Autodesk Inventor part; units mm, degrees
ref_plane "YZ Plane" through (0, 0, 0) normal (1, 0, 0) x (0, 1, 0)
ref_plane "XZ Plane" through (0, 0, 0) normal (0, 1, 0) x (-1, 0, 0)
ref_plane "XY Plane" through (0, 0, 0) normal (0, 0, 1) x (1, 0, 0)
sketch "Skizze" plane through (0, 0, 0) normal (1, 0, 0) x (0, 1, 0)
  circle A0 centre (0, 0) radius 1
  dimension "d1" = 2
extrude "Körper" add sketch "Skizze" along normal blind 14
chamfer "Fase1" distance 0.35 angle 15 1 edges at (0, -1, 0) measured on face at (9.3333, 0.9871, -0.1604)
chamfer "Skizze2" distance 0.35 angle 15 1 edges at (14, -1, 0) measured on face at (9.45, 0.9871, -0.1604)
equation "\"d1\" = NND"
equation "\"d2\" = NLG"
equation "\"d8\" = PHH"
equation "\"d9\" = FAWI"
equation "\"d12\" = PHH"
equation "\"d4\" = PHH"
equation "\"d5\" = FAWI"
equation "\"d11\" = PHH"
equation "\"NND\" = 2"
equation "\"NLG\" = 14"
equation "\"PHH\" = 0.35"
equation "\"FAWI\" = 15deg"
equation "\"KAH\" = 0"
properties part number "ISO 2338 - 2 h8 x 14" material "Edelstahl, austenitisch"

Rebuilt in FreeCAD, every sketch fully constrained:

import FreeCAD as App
import Part
import Sketcher
from FreeCAD import Vector


def edges_at(feature, points):
    """Names of the edges that pass closest to the given points."""
    edges = feature.Shape.Edges
    near = lambda p: min(range(len(edges)), key=lambda i: edges[i].distToShape(Part.Vertex(*p))[0])
    return sorted({f"Edge{near(p) + 1}" for p in points})

doc = App.newDocument("Part")
body = doc.addObject("PartDesign::Body", "Body")

sketch1 = doc.addObject("Sketcher::SketchObject", "Sketch")
body.addObject(sketch1)
sketch1.AttachmentSupport = (doc.YZ_Plane, [""])
sketch1.MapMode = "FlatFace"
sketch1.addGeometry(Part.Circle(Vector(0, 0, 0), Vector(0, 0, 1), 1), False)
sketch1.addConstraint([
    Sketcher.Constraint("Coincident", 0, 3, -1, 1),
    Sketcher.Constraint("Diameter", 0, 2.0),
])
pad1 = doc.addObject("PartDesign::Pad", "Pad")
body.addObject(pad1)
pad1.Profile = sketch1
pad1.Length = 14
doc.recompute()

chamfer = doc.addObject("PartDesign::Chamfer", "Chamfer")
body.addObject(chamfer)
chamfer.Base = (pad1, edges_at(pad1, [(0, -1, 0)]))
chamfer.ChamferType = "Distance and Angle"
chamfer.Size = 0.35
chamfer.Angle = 15
doc.recompute()

chamfer2 = doc.addObject("PartDesign::Chamfer", "Chamfer001")
body.addObject(chamfer2)
chamfer2.Base = (chamfer, edges_at(chamfer, [(14, -1, 0)]))
chamfer2.ChamferType = "Distance and Angle"
chamfer2.Size = 0.35
chamfer2.Angle = 15

doc.recompute()
